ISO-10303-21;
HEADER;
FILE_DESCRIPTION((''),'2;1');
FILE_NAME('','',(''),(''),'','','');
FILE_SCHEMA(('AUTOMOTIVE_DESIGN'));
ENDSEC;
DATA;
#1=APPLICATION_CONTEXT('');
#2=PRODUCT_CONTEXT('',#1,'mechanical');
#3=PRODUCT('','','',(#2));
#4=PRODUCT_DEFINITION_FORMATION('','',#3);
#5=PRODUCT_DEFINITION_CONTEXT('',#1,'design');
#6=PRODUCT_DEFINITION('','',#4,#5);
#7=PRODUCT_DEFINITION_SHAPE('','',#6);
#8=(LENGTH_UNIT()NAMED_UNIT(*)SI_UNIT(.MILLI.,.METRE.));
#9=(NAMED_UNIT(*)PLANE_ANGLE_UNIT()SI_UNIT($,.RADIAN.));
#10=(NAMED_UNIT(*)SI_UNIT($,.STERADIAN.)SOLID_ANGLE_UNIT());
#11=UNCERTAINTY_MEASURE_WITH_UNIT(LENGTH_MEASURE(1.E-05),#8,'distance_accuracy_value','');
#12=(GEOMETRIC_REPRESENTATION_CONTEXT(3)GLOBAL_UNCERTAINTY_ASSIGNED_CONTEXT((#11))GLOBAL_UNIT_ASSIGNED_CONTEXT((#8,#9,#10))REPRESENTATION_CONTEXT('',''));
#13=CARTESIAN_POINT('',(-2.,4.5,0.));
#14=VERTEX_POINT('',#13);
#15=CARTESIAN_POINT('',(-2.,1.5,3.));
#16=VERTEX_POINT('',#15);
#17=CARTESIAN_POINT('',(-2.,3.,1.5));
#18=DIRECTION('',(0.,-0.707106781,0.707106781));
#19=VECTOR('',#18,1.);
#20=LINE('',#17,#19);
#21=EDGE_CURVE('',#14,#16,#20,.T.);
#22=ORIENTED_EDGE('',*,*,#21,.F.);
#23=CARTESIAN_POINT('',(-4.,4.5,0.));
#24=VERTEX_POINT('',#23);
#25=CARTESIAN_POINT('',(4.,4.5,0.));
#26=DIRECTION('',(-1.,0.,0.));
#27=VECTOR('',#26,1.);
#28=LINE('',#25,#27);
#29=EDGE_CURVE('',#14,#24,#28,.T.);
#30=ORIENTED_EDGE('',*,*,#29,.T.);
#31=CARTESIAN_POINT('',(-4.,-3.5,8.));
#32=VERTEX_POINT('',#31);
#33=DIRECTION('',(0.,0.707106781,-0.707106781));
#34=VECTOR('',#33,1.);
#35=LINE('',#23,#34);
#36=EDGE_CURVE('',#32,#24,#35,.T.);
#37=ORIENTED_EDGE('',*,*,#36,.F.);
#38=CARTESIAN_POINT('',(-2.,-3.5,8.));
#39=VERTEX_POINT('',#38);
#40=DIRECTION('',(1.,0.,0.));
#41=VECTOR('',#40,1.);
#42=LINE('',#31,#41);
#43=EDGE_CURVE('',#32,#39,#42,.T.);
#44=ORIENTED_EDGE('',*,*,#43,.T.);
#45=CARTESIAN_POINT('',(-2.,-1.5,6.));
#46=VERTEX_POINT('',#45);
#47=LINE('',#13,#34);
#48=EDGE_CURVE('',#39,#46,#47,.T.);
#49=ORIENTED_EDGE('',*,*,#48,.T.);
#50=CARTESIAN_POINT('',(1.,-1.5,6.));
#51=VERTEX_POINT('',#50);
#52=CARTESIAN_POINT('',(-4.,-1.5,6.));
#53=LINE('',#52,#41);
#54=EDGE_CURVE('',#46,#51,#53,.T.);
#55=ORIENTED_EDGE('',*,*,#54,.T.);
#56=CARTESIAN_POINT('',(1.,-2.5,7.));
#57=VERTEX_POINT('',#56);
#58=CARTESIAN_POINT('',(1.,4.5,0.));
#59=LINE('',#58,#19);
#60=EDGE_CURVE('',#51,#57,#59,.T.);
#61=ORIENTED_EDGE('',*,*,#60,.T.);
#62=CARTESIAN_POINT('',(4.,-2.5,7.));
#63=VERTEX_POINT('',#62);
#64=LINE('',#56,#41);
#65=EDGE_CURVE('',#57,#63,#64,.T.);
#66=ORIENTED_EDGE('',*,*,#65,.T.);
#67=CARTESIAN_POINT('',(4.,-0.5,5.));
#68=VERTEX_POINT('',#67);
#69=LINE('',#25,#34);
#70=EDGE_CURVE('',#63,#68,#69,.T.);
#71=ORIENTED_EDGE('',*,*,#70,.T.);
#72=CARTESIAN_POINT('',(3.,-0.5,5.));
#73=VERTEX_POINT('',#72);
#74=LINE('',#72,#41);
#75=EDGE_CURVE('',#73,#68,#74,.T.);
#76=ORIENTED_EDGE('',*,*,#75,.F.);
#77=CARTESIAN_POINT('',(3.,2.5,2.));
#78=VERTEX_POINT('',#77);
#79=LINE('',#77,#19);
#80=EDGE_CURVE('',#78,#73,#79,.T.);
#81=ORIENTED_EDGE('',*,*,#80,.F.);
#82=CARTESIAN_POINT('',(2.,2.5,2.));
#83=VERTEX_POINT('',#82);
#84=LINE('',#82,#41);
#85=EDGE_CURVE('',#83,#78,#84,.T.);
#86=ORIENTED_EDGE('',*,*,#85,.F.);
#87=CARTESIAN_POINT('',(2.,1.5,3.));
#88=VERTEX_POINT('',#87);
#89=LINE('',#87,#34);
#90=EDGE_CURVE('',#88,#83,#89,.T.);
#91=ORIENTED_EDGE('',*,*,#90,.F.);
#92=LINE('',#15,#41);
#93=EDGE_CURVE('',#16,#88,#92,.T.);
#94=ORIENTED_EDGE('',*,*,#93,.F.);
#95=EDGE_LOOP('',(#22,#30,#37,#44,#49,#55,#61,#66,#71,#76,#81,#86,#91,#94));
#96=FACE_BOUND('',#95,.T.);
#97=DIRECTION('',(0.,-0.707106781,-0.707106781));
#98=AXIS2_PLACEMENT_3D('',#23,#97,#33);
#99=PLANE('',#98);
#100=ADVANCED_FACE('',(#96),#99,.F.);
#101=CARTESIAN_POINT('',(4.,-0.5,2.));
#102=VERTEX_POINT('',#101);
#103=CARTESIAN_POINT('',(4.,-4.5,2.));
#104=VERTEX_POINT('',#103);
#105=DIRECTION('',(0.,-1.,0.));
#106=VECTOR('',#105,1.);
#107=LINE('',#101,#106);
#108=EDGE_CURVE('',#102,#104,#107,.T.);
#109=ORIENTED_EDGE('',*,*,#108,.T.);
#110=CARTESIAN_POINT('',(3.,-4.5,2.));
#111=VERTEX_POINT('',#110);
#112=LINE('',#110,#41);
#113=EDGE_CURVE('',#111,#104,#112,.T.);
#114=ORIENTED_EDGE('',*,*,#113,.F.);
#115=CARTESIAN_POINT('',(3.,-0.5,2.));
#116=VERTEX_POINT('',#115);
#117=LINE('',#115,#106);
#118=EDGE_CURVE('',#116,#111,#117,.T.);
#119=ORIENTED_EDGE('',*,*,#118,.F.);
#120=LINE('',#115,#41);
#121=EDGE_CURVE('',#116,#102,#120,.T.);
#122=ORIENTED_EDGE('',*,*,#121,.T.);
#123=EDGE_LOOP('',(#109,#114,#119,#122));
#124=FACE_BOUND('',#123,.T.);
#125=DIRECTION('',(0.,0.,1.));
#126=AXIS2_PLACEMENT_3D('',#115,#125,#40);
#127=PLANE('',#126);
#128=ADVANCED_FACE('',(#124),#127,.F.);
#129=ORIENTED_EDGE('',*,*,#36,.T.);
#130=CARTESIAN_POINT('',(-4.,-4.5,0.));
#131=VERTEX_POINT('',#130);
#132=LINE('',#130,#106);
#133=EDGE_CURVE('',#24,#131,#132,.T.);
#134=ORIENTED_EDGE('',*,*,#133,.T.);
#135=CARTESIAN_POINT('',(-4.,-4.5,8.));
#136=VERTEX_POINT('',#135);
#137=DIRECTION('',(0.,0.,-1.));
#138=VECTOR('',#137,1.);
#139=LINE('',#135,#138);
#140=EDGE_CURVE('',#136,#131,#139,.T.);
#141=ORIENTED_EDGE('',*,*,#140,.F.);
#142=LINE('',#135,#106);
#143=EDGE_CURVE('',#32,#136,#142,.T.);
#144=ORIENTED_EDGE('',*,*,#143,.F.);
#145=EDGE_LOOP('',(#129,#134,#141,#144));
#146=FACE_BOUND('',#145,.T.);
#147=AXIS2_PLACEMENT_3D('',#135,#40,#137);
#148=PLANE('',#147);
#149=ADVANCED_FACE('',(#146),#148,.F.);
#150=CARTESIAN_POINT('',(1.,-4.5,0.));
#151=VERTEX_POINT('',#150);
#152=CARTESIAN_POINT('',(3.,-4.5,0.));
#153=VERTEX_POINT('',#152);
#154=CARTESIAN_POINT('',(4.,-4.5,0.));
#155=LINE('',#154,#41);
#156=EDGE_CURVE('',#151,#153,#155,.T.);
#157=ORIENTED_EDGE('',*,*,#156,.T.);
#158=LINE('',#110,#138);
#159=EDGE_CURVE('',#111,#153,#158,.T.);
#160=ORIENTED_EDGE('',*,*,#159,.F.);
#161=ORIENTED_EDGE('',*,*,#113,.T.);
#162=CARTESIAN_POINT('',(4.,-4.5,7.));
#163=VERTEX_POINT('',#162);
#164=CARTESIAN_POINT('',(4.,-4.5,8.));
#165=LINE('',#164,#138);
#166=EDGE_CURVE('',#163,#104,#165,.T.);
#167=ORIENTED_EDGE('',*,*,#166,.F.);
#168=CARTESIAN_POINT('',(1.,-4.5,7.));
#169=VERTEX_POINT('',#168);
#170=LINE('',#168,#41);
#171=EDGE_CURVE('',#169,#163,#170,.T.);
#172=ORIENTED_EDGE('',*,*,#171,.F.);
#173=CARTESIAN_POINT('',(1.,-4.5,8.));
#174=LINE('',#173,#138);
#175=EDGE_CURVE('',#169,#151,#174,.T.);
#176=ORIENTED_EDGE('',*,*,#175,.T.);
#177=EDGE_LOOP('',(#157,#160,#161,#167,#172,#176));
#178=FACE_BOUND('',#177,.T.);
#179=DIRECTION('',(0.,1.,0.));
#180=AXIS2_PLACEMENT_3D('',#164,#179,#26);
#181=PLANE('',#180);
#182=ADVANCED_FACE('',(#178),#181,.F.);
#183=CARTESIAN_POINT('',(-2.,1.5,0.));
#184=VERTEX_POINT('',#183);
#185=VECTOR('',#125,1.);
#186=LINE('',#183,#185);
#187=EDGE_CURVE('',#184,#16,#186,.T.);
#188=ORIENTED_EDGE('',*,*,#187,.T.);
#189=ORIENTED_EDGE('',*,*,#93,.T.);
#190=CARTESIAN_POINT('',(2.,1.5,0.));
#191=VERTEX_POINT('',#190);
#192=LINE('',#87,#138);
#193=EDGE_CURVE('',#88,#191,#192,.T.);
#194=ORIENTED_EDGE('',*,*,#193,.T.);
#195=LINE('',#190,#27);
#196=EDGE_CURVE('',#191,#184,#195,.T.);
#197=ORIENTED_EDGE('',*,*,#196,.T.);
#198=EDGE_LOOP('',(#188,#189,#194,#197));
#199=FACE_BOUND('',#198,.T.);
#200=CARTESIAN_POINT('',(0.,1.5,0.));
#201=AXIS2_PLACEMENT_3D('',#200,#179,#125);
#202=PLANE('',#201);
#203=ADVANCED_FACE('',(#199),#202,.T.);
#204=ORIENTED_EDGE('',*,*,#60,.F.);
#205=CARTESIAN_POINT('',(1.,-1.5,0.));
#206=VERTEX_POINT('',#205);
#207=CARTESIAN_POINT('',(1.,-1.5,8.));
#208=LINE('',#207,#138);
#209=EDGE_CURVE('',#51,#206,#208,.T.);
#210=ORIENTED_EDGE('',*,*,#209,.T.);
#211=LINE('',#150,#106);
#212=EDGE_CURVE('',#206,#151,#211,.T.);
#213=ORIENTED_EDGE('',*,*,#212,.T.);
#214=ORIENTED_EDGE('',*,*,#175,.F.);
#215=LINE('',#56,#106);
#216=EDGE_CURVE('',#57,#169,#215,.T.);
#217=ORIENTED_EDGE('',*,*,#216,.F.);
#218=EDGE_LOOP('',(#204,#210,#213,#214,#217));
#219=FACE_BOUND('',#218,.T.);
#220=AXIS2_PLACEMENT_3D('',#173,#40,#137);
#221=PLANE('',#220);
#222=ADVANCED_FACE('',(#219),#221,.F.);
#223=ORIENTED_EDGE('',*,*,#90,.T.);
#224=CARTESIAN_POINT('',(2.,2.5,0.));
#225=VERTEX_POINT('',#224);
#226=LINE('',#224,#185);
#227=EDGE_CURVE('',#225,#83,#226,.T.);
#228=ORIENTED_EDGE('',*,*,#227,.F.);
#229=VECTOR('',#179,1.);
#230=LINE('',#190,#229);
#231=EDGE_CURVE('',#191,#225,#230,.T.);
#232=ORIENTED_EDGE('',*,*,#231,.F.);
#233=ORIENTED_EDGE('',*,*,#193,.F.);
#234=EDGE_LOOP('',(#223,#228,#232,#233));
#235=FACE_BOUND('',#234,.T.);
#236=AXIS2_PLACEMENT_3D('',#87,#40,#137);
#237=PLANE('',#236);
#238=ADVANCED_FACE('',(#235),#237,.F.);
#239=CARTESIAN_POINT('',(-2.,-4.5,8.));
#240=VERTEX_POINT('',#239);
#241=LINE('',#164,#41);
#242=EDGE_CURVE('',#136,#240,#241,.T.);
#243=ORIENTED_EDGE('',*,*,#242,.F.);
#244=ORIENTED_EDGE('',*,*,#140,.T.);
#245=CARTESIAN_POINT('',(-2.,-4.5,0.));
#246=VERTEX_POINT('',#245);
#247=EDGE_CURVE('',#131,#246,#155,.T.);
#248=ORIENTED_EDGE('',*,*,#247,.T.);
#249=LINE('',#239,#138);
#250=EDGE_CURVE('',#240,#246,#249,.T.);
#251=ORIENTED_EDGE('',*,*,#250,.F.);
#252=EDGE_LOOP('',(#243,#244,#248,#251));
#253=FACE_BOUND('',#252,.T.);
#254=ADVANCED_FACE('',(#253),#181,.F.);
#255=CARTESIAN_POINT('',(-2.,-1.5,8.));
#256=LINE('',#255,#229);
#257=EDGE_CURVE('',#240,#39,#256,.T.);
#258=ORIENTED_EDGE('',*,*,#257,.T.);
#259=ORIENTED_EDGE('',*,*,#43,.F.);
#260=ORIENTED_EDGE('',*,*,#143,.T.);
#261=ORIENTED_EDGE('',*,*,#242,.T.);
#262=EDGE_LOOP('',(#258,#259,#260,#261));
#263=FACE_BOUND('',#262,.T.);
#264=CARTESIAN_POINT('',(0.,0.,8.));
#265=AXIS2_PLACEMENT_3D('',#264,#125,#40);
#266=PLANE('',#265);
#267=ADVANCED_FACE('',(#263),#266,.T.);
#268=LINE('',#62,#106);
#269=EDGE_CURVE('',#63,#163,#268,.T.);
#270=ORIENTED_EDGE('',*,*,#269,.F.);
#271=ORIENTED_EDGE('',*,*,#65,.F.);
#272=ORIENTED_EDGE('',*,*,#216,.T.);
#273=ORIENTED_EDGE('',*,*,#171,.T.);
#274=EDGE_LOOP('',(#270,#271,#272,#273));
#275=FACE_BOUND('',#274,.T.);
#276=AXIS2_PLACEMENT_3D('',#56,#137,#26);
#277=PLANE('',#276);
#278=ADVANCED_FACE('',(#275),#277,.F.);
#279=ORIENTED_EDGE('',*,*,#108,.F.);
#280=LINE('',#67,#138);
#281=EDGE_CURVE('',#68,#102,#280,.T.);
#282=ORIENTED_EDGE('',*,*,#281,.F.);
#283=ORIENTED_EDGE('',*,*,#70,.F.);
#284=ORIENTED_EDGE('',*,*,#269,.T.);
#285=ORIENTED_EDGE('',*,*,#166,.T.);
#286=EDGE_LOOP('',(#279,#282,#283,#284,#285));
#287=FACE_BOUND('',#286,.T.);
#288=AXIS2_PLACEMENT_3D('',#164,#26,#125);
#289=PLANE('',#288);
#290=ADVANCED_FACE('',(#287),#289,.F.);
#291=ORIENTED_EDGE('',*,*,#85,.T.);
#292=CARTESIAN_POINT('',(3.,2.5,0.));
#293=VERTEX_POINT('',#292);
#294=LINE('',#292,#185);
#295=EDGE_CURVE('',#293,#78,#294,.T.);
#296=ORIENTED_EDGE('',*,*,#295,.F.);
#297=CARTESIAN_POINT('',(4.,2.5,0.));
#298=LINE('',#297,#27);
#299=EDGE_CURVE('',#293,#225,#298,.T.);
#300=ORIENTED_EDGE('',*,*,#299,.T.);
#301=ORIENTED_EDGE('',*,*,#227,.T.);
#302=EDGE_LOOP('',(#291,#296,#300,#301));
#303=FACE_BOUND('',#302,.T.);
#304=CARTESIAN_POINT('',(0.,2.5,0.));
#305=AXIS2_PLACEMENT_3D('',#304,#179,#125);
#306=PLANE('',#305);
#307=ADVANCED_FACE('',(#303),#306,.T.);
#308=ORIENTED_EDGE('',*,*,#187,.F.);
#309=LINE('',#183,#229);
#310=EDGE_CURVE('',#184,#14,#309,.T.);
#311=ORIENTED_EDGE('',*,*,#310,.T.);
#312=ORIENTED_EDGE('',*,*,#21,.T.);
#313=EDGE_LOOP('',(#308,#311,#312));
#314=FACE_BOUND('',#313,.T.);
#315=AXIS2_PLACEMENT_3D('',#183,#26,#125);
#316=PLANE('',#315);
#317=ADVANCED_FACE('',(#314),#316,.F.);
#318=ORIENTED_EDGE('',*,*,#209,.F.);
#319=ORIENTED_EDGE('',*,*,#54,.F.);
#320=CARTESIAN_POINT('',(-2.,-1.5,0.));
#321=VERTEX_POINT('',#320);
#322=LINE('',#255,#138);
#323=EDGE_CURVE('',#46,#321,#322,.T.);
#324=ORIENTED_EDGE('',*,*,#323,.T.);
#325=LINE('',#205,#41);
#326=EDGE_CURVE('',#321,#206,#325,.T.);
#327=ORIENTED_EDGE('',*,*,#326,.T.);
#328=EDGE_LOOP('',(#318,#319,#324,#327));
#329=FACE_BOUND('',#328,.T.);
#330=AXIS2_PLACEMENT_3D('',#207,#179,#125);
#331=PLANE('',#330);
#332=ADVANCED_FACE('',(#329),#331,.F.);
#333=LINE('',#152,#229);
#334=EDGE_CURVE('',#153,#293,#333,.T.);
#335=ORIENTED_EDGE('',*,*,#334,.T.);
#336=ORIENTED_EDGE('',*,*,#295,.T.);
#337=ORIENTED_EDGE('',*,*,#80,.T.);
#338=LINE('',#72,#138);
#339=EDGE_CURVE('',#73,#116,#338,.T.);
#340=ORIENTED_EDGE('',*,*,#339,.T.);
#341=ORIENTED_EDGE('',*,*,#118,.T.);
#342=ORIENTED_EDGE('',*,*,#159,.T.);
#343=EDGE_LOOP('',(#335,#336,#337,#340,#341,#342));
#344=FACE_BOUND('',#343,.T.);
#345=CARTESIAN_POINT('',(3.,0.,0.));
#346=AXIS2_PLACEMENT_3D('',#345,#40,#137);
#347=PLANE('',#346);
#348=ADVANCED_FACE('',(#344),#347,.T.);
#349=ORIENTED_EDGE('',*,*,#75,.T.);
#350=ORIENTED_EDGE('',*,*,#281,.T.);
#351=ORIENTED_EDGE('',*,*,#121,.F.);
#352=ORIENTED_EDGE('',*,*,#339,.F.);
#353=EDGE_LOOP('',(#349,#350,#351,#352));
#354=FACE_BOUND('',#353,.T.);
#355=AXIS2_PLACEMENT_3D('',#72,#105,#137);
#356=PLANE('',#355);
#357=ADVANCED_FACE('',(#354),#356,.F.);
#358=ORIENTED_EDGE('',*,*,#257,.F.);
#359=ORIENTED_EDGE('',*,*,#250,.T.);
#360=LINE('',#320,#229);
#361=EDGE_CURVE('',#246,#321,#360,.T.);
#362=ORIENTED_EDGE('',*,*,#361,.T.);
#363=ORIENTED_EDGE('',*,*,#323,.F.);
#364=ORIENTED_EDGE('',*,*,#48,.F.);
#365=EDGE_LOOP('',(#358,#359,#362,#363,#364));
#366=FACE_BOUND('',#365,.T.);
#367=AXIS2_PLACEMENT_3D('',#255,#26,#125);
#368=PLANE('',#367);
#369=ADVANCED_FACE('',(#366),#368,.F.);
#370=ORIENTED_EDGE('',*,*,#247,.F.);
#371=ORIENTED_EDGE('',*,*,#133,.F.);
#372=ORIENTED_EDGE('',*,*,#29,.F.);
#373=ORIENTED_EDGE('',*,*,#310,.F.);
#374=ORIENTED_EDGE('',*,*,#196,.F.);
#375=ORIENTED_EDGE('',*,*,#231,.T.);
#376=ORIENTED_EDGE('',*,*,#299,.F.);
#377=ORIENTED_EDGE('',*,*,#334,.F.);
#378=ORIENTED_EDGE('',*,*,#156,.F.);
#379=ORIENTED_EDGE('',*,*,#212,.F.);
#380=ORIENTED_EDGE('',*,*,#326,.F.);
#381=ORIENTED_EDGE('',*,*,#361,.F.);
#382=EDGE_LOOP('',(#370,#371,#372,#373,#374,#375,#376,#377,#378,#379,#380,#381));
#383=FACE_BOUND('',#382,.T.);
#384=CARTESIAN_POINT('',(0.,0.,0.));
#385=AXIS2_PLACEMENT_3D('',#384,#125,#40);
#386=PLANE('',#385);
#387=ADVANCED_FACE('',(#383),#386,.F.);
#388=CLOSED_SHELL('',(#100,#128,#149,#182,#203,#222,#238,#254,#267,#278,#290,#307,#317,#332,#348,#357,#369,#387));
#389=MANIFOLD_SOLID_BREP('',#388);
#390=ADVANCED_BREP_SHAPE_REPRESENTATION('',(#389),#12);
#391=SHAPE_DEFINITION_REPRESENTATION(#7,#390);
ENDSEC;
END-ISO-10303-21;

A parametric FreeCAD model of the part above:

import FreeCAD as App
import Part
import Sketcher


def add_polygon(sketch, points):
    """Adds a closed chain of lines whose ends are joined by coincident constraints."""
    first, n = sketch.GeometryCount, len(points)
    for a, b in zip(points, points[1:] + points[:1]):
        sketch.addGeometry(Part.LineSegment(App.Vector(*a, 0), App.Vector(*b, 0)), False)
    for i in range(n):
        sketch.addConstraint(Sketcher.Constraint("Coincident", first + i, 2, first + (i + 1) % n, 1))

doc = App.newDocument("Part")
body = doc.addObject("PartDesign::Body", "Body")

sketch1 = body.newObject("Sketcher::SketchObject", "Sketch")
sketch1.AttachmentSupport = (doc.getObject("XY_Plane"), [""])
sketch1.MapMode = "FlatFace"
add_polygon(sketch1, [(-4, 4), (-4, -4), (4, -4), (4, 4)])
sketch1.addConstraint([
    Sketcher.Constraint("Vertical", 0),
    Sketcher.Constraint("Horizontal", 1),
    Sketcher.Constraint("Vertical", 2),
    Sketcher.Constraint("Horizontal", 3),
    Sketcher.Constraint("Symmetric", 0, 2, 2, 2, -1, 1),
    Sketcher.Constraint("DistanceX", 1, 1, 1, 2, 8.0),
    Sketcher.Constraint("DistanceY", 0, 2, 0, 1, 9.0),
])
pad1 = body.newObject("PartDesign::Pad", "Pad")
pad1.Profile = sketch1
pad1.Length = 8

sketch2 = body.newObject("Sketcher::SketchObject", "Sketch001")
sketch2.AttachmentSupport = (doc.getObject("XZ_Plane"), [""])
sketch2.MapMode = "FlatFace"
sketch2.AttachmentOffset = App.Placement(App.Vector(0, 0, -4.5), App.Rotation())
add_polygon(sketch2, [(-2, 0), (-2, 3), (2, 3), (2, 0)])
sketch2.addConstraint([
    Sketcher.Constraint("Vertical", 0),
    Sketcher.Constraint("Horizontal", 1),
    Sketcher.Constraint("Vertical", 2),
    Sketcher.Constraint("Horizontal", 3),
    Sketcher.Constraint("Symmetric", 2, 2, 3, 2, -1, 1),
    Sketcher.Constraint("DistanceX", 1, 1, 1, 2, 4.0),
    Sketcher.Constraint("DistanceY", 0, 1, 0, 2, 3.0),
])
pocket1 = body.newObject("PartDesign::Pocket", "Pocket")
pocket1.Profile = sketch2
pocket1.Length = 3
pocket1.Reversed = True

sketch3 = body.newObject("Sketcher::SketchObject", "Sketch002")
sketch3.AttachmentSupport = (doc.getObject("XZ_Plane"), [""])
sketch3.MapMode = "FlatFace"
sketch3.AttachmentOffset = App.Placement(App.Vector(0, 0, -4.5), App.Rotation())
add_polygon(sketch3, [(2, 0), (2, 2), (4, 2), (4, 0)])
sketch3.addConstraint([
    Sketcher.Constraint("Vertical", 0),
    Sketcher.Constraint("Horizontal", 1),
    Sketcher.Constraint("Vertical", 2),
    Sketcher.Constraint("Horizontal", 3),
    Sketcher.Constraint("PointOnObject", 2, 2, -1),
    Sketcher.Constraint("Equal", 3, 0),
    Sketcher.Constraint("DistanceX", 1, 1, 1, 2, 2.0),
    Sketcher.Constraint("DistanceX", -1, 1, 0, 2, 2.0),
])
pocket2 = body.newObject("PartDesign::Pocket", "Pocket001")
pocket2.Profile = sketch3
pocket2.Length = 2
pocket2.Reversed = True

sketch4 = body.newObject("Sketcher::SketchObject", "Sketch003")
sketch4.AttachmentSupport = (doc.getObject("YZ_Plane"), [""])
sketch4.MapMode = "FlatFace"
sketch4.AttachmentOffset = App.Placement(App.Vector(0, 0, 4), App.Rotation())
add_polygon(sketch4, [(-4.5, 0), (2.5, 0), (2.5, 2), (-0.5, 5), (-0.5, 2), (-4.5, 2)])
sketch4.addConstraint([
    Sketcher.Constraint("Horizontal", 0),
    Sketcher.Constraint("Vertical", 1),
    Sketcher.Constraint("Vertical", 3),
    Sketcher.Constraint("Horizontal", 4),
    Sketcher.Constraint("Vertical", 5),
    Sketcher.Constraint("PointOnObject", 0, 2, -1),
    Sketcher.Constraint("Horizontal", 1, 2, 3, 2),
    Sketcher.Constraint("DistanceX", 0, 1, 0, 2, 7.0),
    Sketcher.Constraint("DistanceX", 4, 2, 4, 1, 4.0),
    Sketcher.Constraint("DistanceY", 1, 1, 1, 2, 2.0),
    Sketcher.Constraint("DistanceY", 3, 2, 3, 1, 3.0),
    Sketcher.Constraint("DistanceX", -1, 1, 0, 2, 2.5),
])
pocket3 = body.newObject("PartDesign::Pocket", "Pocket002")
pocket3.Profile = sketch4
pocket3.Length = 1

sketch5 = body.newObject("Sketcher::SketchObject", "Sketch004")
sketch5.AttachmentSupport = (doc.getObject("YZ_Plane"), [""])
sketch5.MapMode = "FlatFace"
sketch5.AttachmentOffset = App.Placement(App.Vector(0, 0, 4), App.Rotation())
add_polygon(sketch5, [(-4, 8), (4, 0), (4, 8)])
sketch5.addConstraint([
    Sketcher.Constraint("Vertical", 1),
    Sketcher.Constraint("Horizontal", 2),
    Sketcher.Constraint("PointOnObject", 0, 2, -1),
    Sketcher.Constraint("Equal", 2, 1),
    Sketcher.Constraint("DistanceX", 2, 2, 2, 1, 8.0),
    Sketcher.Constraint("DistanceX", -1, 1, 0, 2, 4.5),
])
pocket4 = body.newObject("PartDesign::Pocket", "Pocket003")
pocket4.Profile = sketch5
pocket4.Type = "ThroughAll"

sketch6 = body.newObject("Sketcher::SketchObject", "Sketch005")
sketch6.AttachmentSupport = (doc.getObject("XY_Plane"), [""])
sketch6.MapMode = "FlatFace"
add_polygon(sketch6, [(1, -1.5), (1, -4.5), (-2, -4.5), (-2, -1.5)])
sketch6.addConstraint([
    Sketcher.Constraint("Vertical", 0),
    Sketcher.Constraint("Horizontal", 1),
    Sketcher.Constraint("Vertical", 2),
    Sketcher.Constraint("Horizontal", 3),
    Sketcher.Constraint("Equal", 3, 0),
    Sketcher.Constraint("DistanceX", 1, 2, 1, 1, 3.0),
    Sketcher.Constraint("DistanceX", -1, 1, 0, 2, 1.0),
    Sketcher.Constraint("DistanceY", 0, 2, -1, 1, 4.5),
])
pocket5 = body.newObject("PartDesign::Pocket", "Pocket004")
pocket5.Profile = sketch6
pocket5.Type = "ThroughAll"
pocket5.Reversed = True

sketch7 = body.newObject("Sketcher::SketchObject", "Sketch006")
sketch7.AttachmentSupport = (doc.getObject("XZ_Plane"), [""])
sketch7.MapMode = "FlatFace"
sketch7.AttachmentOffset = App.Placement(App.Vector(0, 0, 4.5), App.Rotation())
add_polygon(sketch7, [(1, 8), (1, 7), (4, 7), (4, 8)])
sketch7.addConstraint([
    Sketcher.Constraint("Vertical", 0),
    Sketcher.Constraint("Horizontal", 1),
    Sketcher.Constraint("Vertical", 2),
    Sketcher.Constraint("Horizontal", 3),
    Sketcher.Constraint("DistanceX", 1, 1, 1, 2, 3.0),
    Sketcher.Constraint("DistanceY", 0, 2, 0, 1, 1.0),
    Sketcher.Constraint("DistanceX", -1, 1, 0, 2, 1.0),
    Sketcher.Constraint("DistanceY", -1, 1, 0, 2, 7.0),
])
pocket6 = body.newObject("PartDesign::Pocket", "Pocket005")
pocket6.Profile = sketch7
pocket6.Length = 2

doc.recompute()
